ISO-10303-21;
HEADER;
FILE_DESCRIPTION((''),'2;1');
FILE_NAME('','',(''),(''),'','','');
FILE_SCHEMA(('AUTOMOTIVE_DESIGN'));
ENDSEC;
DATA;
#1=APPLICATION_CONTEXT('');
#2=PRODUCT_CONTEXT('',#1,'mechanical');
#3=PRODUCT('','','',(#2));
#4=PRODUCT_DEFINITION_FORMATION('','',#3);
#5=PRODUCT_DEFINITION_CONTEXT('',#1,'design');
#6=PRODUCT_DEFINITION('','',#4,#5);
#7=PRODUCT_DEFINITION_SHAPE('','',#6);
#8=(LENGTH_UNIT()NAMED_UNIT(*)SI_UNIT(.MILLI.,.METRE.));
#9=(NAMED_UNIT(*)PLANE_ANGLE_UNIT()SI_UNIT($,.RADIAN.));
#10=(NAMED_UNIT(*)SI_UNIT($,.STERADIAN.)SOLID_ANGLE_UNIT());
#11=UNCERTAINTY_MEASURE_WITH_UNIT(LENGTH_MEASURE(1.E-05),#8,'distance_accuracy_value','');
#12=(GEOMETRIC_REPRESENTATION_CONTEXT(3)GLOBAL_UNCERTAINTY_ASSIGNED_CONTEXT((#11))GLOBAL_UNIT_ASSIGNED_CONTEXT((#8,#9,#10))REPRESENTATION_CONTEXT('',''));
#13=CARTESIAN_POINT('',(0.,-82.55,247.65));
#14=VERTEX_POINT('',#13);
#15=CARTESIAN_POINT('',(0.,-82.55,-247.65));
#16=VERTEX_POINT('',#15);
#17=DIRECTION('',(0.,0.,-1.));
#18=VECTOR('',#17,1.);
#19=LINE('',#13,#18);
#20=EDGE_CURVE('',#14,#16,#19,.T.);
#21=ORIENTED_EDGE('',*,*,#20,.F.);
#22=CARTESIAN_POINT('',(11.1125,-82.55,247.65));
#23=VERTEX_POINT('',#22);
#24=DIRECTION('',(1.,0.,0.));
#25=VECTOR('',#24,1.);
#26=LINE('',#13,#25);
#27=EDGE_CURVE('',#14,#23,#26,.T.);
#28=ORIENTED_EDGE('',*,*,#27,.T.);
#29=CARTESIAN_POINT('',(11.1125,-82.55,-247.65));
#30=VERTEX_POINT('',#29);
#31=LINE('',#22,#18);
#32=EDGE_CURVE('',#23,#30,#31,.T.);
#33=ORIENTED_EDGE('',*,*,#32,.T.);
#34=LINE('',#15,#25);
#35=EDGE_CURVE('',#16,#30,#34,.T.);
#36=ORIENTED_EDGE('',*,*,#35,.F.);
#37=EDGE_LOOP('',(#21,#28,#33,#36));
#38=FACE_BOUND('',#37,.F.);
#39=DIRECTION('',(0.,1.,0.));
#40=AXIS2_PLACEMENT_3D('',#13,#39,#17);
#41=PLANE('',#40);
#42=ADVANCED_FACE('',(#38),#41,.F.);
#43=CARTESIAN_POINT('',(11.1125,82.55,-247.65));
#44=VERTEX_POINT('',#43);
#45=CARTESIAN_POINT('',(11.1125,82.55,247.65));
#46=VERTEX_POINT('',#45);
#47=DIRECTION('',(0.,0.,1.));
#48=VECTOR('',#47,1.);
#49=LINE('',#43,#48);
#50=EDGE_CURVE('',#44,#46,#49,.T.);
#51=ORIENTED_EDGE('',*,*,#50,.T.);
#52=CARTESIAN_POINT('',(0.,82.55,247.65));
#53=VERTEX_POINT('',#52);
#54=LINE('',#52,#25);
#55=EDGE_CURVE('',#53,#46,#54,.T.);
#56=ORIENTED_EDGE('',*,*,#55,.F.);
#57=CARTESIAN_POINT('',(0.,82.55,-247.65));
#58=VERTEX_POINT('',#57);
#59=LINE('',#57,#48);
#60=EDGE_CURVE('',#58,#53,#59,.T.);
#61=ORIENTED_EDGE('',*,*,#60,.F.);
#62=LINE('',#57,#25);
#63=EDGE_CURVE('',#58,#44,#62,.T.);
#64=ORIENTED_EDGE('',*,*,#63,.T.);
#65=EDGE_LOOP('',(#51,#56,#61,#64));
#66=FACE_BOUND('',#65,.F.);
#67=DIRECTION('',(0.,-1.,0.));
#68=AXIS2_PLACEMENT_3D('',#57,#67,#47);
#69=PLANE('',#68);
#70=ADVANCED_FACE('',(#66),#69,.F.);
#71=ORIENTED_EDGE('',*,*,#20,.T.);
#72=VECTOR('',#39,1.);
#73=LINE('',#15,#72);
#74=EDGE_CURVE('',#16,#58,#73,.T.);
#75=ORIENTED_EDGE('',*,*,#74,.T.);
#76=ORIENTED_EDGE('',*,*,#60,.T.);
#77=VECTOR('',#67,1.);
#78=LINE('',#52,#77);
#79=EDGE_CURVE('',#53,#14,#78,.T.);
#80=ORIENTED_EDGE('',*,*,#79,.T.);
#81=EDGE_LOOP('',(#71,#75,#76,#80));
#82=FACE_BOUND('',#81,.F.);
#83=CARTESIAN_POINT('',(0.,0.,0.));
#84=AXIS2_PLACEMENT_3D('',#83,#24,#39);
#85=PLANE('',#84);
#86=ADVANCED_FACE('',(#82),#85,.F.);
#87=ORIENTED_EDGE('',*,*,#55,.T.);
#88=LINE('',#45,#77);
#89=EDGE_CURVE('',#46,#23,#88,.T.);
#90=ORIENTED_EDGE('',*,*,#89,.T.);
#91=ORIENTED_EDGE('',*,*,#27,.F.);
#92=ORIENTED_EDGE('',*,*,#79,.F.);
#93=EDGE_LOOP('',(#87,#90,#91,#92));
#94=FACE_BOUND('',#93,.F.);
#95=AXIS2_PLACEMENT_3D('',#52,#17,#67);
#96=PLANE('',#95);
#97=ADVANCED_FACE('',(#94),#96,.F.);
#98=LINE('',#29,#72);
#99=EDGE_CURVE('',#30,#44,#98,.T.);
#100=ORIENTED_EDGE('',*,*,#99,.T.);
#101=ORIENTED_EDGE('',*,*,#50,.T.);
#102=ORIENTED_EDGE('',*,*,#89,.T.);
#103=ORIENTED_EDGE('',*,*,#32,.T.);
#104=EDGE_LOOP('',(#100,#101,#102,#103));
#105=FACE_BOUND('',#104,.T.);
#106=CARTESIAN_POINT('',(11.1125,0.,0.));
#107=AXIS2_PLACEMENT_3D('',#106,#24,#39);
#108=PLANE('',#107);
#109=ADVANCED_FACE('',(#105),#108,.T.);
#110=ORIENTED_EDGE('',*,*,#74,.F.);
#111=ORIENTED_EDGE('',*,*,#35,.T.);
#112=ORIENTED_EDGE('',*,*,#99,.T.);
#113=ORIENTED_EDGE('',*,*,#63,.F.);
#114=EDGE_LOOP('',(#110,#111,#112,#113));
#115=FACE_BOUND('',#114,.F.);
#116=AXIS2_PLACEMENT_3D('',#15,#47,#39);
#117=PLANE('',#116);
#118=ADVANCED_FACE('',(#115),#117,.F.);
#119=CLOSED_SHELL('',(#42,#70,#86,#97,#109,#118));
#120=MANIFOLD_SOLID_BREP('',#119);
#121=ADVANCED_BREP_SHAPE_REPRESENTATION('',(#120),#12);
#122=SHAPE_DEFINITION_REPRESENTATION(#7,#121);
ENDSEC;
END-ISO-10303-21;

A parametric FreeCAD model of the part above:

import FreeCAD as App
import Part
import Sketcher
from FreeCAD import Vector
Q = App.Units.Quantity

doc = App.newDocument("Part")
params = doc.addObject("Spreadsheet::Sheet", "Params")
for row, (alias, value) in enumerate([
    ("sketch1_width", "6.5 in"),
    ("sketch1_height", "19.5 in"),
    ("pad1_length", "0.4375 in"),
], start=1):
    params.set(f"A{row}", alias)
    params.set(f"B{row}", "=" + value)
    params.setAlias(f"B{row}", alias)

body = doc.addObject("PartDesign::Body", "Body")

sketch1 = body.newObject("Sketcher::SketchObject", "Sketch")
sketch1.AttachmentSupport = (doc.getObject("YZ_Plane"), [""])
sketch1.MapMode = "FlatFace"
sketch1.addGeometry([
    Part.LineSegment(Vector(83, 248, 0), Vector(-83, 248, 0)),
    Part.LineSegment(Vector(-83, 248, 0), Vector(-83, -248, 0)),
    Part.LineSegment(Vector(-83, -248, 0), Vector(83, -248, 0)),
    Part.LineSegment(Vector(83, -248, 0), Vector(83, 248, 0)),
], False)
sketch1.addConstraint([
    Sketcher.Constraint("Coincident", 0, 2, 1, 1),
    Sketcher.Constraint("Coincident", 1, 2, 2, 1),
    Sketcher.Constraint("Coincident", 2, 2, 3, 1),
    Sketcher.Constraint("Coincident", 3, 2, 0, 1),
    Sketcher.Constraint("Horizontal", 0),
    Sketcher.Constraint("Vertical", 1),
    Sketcher.Constraint("Horizontal", 2),
    Sketcher.Constraint("Vertical", 3),
    Sketcher.Constraint("Symmetric", 0, 2, 2, 2, -1, 1),
    Sketcher.Constraint("DistanceX", 0, 2, 0, 1, Q("6.5 in")),
    Sketcher.Constraint("DistanceY", 1, 2, 1, 1, Q("19.5 in")),
])
sketch1.setExpression("Constraints[9]", "Params.sketch1_width")
sketch1.setExpression("Constraints[10]", "Params.sketch1_height")
pad1 = body.newObject("PartDesign::Pad", "Pad")
pad1.Profile = sketch1
pad1.setExpression("Length", "Params.pad1_length")

doc.recompute()
